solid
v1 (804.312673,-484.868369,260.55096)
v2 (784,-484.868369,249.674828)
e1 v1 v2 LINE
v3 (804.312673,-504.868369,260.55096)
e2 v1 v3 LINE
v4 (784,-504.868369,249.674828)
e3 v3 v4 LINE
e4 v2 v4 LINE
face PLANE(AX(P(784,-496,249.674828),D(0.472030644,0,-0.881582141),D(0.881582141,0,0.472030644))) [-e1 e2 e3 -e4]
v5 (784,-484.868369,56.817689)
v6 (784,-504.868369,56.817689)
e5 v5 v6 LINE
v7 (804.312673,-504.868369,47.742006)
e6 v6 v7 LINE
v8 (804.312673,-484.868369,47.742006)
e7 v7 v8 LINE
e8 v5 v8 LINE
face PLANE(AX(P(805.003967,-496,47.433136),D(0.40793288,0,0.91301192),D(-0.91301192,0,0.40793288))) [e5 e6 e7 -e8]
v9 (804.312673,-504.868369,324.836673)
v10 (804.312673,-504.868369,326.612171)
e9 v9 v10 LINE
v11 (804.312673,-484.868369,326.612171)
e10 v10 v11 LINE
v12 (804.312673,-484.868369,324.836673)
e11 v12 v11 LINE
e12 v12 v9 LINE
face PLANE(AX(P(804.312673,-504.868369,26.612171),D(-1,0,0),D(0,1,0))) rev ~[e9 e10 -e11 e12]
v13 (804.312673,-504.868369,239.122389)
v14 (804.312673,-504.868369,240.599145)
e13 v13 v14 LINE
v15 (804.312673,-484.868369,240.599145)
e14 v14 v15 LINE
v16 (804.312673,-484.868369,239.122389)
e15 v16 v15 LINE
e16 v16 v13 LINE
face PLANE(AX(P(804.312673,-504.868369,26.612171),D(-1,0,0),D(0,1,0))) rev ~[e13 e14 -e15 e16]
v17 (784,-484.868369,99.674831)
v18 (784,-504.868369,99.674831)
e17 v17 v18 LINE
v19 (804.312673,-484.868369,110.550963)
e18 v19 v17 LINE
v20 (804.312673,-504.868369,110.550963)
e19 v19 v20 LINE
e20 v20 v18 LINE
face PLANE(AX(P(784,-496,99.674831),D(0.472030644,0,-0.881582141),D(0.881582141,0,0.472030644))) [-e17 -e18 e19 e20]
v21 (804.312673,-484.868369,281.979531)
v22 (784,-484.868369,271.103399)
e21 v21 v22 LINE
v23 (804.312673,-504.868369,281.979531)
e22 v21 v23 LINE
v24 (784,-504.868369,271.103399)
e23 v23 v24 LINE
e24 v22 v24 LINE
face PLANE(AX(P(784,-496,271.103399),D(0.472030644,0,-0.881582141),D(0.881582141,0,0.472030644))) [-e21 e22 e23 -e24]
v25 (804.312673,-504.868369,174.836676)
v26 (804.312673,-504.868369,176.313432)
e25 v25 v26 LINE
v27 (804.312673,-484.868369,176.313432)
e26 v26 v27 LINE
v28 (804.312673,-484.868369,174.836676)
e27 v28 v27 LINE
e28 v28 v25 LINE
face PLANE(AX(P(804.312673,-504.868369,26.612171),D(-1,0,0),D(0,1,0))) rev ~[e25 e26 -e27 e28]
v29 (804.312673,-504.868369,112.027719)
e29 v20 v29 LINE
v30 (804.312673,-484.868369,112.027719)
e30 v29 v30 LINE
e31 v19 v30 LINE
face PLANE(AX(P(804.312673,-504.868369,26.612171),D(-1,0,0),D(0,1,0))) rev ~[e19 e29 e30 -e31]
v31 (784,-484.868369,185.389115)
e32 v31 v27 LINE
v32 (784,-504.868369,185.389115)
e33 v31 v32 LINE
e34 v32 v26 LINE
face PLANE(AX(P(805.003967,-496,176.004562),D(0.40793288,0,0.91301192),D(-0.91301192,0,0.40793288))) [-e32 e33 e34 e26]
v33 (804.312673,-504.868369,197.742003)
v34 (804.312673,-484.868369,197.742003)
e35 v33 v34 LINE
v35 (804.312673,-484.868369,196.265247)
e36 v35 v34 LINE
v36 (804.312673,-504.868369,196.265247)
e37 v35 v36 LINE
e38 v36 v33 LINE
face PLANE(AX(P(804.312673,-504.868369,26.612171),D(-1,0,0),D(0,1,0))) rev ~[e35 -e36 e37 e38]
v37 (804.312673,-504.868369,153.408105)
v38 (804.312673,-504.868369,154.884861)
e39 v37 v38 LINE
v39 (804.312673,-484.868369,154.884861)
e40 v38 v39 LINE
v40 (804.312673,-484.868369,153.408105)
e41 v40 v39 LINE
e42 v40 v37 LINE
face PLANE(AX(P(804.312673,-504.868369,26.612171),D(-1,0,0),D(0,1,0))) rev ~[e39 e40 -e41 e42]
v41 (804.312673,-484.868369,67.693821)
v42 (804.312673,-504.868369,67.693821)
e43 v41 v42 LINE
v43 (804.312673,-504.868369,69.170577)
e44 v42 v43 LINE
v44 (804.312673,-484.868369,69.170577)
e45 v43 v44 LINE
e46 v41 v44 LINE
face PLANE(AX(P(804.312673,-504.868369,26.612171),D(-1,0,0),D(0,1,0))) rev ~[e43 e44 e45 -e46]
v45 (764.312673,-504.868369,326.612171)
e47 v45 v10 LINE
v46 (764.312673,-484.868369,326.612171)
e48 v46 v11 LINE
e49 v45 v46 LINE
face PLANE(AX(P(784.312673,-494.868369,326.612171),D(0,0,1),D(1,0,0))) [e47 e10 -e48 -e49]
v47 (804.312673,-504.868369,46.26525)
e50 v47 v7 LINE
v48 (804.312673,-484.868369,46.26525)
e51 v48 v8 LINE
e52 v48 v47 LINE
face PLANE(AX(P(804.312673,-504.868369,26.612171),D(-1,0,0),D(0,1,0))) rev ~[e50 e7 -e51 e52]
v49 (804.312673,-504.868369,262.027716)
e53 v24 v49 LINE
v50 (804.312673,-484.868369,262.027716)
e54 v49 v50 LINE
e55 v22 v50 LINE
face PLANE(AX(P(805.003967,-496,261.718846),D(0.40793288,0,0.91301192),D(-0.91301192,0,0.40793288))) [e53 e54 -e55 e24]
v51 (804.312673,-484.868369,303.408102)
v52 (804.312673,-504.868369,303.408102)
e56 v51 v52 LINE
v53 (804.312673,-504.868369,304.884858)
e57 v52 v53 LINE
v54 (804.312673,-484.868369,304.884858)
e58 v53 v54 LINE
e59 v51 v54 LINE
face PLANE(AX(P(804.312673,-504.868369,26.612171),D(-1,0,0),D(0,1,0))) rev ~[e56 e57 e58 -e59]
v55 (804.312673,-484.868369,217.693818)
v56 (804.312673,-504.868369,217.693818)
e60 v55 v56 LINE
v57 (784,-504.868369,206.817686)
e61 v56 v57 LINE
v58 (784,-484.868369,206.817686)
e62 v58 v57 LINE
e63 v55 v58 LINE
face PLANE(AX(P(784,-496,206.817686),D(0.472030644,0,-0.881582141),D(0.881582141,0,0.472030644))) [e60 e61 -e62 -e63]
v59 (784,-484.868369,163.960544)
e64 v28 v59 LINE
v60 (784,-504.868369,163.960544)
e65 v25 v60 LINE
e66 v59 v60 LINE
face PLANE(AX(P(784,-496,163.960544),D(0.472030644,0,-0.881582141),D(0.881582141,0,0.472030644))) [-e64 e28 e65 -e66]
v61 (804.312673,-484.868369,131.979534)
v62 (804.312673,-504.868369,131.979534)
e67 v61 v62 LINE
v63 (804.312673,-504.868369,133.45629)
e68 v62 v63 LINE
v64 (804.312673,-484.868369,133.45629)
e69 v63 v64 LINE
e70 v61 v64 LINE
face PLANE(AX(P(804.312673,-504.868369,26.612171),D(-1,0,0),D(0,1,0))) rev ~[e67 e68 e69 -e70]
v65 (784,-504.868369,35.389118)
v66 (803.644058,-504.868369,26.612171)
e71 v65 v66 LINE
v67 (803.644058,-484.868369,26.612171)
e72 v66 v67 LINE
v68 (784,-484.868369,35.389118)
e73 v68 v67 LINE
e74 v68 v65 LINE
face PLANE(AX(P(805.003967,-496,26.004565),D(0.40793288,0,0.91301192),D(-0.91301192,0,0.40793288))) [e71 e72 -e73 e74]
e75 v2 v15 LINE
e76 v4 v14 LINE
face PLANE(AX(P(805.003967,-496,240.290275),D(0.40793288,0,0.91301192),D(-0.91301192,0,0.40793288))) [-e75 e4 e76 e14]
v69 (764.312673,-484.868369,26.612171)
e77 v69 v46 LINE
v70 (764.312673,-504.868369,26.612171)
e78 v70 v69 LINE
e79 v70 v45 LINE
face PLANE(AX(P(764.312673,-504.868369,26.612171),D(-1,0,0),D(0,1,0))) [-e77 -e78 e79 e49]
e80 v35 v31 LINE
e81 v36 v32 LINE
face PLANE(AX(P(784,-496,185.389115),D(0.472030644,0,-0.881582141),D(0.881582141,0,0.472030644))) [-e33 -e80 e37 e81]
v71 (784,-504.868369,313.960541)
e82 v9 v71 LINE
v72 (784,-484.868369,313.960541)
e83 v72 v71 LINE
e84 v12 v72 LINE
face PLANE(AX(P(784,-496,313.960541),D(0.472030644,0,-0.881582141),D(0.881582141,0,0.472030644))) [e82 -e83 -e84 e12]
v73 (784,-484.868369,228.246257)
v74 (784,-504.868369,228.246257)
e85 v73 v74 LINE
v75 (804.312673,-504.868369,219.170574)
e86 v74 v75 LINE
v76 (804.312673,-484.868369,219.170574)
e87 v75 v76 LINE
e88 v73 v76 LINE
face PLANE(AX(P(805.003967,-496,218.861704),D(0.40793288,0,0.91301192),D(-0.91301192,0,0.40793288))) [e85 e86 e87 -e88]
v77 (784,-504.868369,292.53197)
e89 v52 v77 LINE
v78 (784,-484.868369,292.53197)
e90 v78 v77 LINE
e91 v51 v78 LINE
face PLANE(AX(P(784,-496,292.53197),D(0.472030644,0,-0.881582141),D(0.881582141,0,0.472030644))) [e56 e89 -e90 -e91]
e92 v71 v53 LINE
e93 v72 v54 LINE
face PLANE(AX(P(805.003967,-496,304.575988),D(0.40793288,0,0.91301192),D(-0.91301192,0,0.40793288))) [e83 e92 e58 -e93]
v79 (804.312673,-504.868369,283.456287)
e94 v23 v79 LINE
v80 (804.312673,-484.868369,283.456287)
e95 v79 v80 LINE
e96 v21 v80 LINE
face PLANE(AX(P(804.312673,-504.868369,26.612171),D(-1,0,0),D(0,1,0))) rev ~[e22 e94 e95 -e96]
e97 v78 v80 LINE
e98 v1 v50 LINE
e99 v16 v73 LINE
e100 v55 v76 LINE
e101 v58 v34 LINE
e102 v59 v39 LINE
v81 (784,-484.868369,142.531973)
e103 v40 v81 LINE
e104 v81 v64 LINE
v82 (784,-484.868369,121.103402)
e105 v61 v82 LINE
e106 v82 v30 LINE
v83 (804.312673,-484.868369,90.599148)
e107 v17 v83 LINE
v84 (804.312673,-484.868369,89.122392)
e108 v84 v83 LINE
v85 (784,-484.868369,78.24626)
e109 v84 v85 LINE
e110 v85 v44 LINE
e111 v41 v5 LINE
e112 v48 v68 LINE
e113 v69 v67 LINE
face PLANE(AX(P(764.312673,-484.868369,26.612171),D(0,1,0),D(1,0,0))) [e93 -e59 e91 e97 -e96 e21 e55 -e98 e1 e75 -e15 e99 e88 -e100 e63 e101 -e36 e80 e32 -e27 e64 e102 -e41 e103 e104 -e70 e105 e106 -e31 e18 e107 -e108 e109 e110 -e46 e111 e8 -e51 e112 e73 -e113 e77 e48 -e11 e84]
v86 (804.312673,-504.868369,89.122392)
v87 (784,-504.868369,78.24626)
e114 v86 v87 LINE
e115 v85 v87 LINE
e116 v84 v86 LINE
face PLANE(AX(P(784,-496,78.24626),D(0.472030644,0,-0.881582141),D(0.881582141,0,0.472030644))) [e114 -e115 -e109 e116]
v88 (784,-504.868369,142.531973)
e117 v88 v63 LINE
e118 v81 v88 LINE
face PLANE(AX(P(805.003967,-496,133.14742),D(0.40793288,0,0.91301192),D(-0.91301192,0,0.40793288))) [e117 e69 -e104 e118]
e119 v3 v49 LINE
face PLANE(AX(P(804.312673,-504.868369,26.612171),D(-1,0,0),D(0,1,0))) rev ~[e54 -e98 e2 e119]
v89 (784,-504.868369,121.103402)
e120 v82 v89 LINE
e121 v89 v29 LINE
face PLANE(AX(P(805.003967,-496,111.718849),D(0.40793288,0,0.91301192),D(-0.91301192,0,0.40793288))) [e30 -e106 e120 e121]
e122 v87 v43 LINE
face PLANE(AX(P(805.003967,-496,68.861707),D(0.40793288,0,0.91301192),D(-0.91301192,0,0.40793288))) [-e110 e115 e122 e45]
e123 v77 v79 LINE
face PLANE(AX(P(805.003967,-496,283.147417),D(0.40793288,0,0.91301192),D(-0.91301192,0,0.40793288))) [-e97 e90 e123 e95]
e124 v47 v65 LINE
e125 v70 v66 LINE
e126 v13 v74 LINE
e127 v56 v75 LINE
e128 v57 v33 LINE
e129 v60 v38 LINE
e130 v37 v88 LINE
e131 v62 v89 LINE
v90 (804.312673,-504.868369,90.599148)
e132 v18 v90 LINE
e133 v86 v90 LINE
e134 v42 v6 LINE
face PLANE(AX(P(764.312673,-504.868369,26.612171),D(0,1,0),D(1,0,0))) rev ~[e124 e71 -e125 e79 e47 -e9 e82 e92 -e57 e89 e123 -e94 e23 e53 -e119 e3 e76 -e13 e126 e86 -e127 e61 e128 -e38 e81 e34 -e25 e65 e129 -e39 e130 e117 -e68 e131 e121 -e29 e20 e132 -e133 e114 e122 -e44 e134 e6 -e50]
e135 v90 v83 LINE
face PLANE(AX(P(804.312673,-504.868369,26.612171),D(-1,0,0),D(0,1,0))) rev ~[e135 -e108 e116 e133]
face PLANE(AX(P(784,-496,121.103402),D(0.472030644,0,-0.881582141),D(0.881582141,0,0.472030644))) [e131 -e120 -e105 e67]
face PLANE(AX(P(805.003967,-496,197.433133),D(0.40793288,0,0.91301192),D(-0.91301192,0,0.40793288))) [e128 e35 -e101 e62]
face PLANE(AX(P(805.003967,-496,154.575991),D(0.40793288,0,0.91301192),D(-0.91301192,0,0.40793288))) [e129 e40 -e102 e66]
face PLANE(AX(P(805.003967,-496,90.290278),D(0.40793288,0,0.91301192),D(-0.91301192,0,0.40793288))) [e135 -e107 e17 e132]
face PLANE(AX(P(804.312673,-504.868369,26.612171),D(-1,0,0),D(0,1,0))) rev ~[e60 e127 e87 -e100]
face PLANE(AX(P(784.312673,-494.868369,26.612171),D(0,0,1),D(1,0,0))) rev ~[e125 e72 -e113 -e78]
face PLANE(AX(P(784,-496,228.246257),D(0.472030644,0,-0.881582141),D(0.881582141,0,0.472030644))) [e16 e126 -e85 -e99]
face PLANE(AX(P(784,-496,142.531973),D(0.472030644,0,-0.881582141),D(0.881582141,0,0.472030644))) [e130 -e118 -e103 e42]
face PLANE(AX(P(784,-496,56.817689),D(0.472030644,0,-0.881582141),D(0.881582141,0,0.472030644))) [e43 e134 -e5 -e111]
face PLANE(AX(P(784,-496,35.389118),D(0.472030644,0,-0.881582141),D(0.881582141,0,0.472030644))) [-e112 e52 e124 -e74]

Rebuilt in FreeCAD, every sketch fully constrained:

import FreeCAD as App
import Part
import Sketcher

V = App.Vector

doc = App.newDocument("Part")
body = doc.addObject("PartDesign::Body", "Body")

# Sketch on XY plane
sketch1 = body.newObject("Sketcher::SketchObject", "Sketch")
sketch1.AttachmentSupport = (doc.getObject("XY_Plane"), [""])
sketch1.MapMode = "FlatFace"
sketch1.AttachmentOffset = App.Placement(V(0, 0, 26.612171), App.Rotation())
sketch1.addGeometry(Part.LineSegment(V(-20, 11, 0), V(-20, -9, 0)), False)
sketch1.addGeometry(Part.LineSegment(V(-20, -9, 0), V(20, -9, 0)), False)
sketch1.addGeometry(Part.LineSegment(V(20, -9, 0), V(20, 11, 0)), False)
sketch1.addGeometry(Part.LineSegment(V(20, 11, 0), V(-20, 11, 0)), False)
sketch1.addConstraint(Sketcher.Constraint("Coincident", 0, 2, 1, 1))
sketch1.addConstraint(Sketcher.Constraint("Coincident", 1, 2, 2, 1))
sketch1.addConstraint(Sketcher.Constraint("Coincident", 2, 2, 3, 1))
sketch1.addConstraint(Sketcher.Constraint("Coincident", 3, 2, 0, 1))
sketch1.addConstraint(Sketcher.Constraint("Vertical", 0))
sketch1.addConstraint(Sketcher.Constraint("Horizontal", 1))
sketch1.addConstraint(Sketcher.Constraint("Vertical", 2))
sketch1.addConstraint(Sketcher.Constraint("Horizontal", 3))
sketch1.addConstraint(Sketcher.Constraint("DistanceX", 1, 1, 1, 2, 40.0))
sketch1.addConstraint(Sketcher.Constraint("DistanceY", 0, 2, 0, 1, 20.0))
sketch1.addConstraint(Sketcher.Constraint("DistanceY", 0, 2, -1, 1, 8.868369))
sketch1.addConstraint(Sketcher.Constraint("DistanceX", 0, 2, -1, 1, 19.687327))
pad1 = body.newObject("PartDesign::Pad", "Pad")
pad1.Profile = sketch1
pad1.Length = 300

# Sketch on XZ plane
sketch2 = body.newObject("Sketcher::SketchObject", "Sketch001")
sketch2.AttachmentSupport = (doc.getObject("XZ_Plane"), [""])
sketch2.MapMode = "FlatFace"
sketch2.addGeometry(Part.LineSegment(V(21, 305, 0), V(21, 325, 0)), False)
sketch2.addGeometry(Part.LineSegment(V(21, 325, 0), V(0, 314, 0)), False)
sketch2.addGeometry(Part.LineSegment(V(0, 314, 0), V(21, 305, 0)), False)
sketch2.addConstraint(Sketcher.Constraint("Coincident", 0, 2, 1, 1))
sketch2.addConstraint(Sketcher.Constraint("Coincident", 1, 2, 2, 1))
sketch2.addConstraint(Sketcher.Constraint("Coincident", 2, 2, 0, 1))
sketch2.addConstraint(Sketcher.Constraint("Vertical", 0))
sketch2.addConstraint(Sketcher.Constraint("PointOnObject", 1, 2, -2))
sketch2.addConstraint(Sketcher.Constraint("DistanceY", 0, 1, 0, 2, 20.630829))
sketch2.addConstraint(Sketcher.Constraint("Distance", 1, 23.825309))
sketch2.addConstraint(Sketcher.Constraint("Distance", 2, 23.00514))
sketch2.addConstraint(Sketcher.Constraint("DistanceY", -1, 1, 1, 2, 313.960541))
pocket1 = body.newObject("PartDesign::Pocket", "Pocket")
pocket1.Profile = sketch2
pocket1.Length = 24
pocket1.Midplane = True
doc.recompute()

linearpattern = body.newObject("PartDesign::LinearPattern", "LinearPattern")
linearpattern.Originals = [pocket1]
linearpattern.Direction = (doc.getObject("Z_Axis"), [""])
linearpattern.Mode = "offset"
linearpattern.Offset = 21.428571
linearpattern.Occurrences = 15
linearpattern.Reversed = True
body.Tip = linearpattern
body2 = doc.addObject("PartDesign::Body", "Body001")
doc.recompute()

body.Placement = App.Placement(V(784, -496, 0), App.Rotation(V(0, 0, 1), 0))
boolean = body2.newObject("PartDesign::Boolean", "Boolean")
boolean.Type = "Fuse"
boolean.addObjects([body])

doc.recompute()
